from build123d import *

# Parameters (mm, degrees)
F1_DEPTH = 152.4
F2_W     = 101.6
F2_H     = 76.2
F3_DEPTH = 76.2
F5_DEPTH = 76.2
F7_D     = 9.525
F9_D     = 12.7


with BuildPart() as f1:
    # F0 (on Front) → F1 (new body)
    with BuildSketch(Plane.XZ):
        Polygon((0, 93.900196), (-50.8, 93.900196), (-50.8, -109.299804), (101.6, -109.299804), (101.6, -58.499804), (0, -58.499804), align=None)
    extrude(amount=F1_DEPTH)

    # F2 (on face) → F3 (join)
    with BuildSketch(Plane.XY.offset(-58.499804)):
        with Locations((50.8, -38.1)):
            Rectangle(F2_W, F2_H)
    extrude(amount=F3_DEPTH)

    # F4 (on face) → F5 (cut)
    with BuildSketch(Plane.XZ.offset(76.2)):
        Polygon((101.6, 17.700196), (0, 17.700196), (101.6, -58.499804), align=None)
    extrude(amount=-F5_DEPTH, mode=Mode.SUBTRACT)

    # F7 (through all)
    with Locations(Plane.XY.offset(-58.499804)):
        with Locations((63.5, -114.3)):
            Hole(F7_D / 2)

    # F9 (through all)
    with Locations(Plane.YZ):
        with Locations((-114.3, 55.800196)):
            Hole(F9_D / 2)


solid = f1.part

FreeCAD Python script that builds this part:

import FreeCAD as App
import Part
import Sketcher
from FreeCAD import Vector
Q = App.Units.Quantity


def add_polygon(sketch, points):
    """Adds a closed chain of lines whose ends are joined by coincident constraints."""
    first, n = sketch.GeometryCount, len(points)
    for a, b in zip(points, points[1:] + points[:1]):
        sketch.addGeometry(Part.LineSegment(App.Vector(*a, 0), App.Vector(*b, 0)), False)
    for i in range(n):
        sketch.addConstraint(Sketcher.Constraint("Coincident", first + i, 2, first + (i + 1) % n, 1))

doc = App.newDocument("Part")
body = doc.addObject("PartDesign::Body", "Body")

sketch1 = body.newObject("Sketcher::SketchObject", "Sketch")
sketch1.AttachmentSupport = (doc.getObject("XZ_Plane"), [""])
sketch1.MapMode = "FlatFace"
add_polygon(sketch1, [(0, 94), (-51, 94), (-51, -109), (102, -109), (102, -58), (0, -58)])
sketch1.addConstraint(Sketcher.Constraint("Horizontal", 0))
sketch1.addConstraint(Sketcher.Constraint("Vertical", 1))
sketch1.addConstraint(Sketcher.Constraint("Horizontal", 2))
sketch1.addConstraint(Sketcher.Constraint("Vertical", 3))
sketch1.addConstraint(Sketcher.Constraint("Horizontal", 4))
sketch1.addConstraint(Sketcher.Constraint("Vertical", 5))
sketch1.addConstraint(Sketcher.Constraint("PointOnObject", 4, 2, -2))
sketch1.addConstraint(Sketcher.Constraint("Equal", 0, 3))
sketch1.addConstraint(Sketcher.Constraint("Equal", 2, 5))
sketch1.addConstraint(Sketcher.Constraint("DistanceX", 0, 2, 0, 1, Q("2 in")))
sketch1.addConstraint(Sketcher.Constraint("DistanceX", 2, 1, 2, 2, Q("6 in")))
sketch1.addConstraint(Sketcher.Constraint("DistanceY", -1, 1, 0, 2, 93.900196))
pad1 = body.newObject("PartDesign::Pad", "Pad")
pad1.Profile = sketch1
pad1.Length = Q("6 in")

sketch2 = body.newObject("Sketcher::SketchObject", "Sketch001")
sketch2.AttachmentSupport = (doc.getObject("XY_Plane"), [""])
sketch2.MapMode = "FlatFace"
sketch2.AttachmentOffset = App.Placement(Vector(0, 0, -58.499804), App.Rotation())
add_polygon(sketch2, [(0, 0), (0, -76), (102, -76), (102, 0)])
sketch2.addConstraint(Sketcher.Constraint("Vertical", 0))
sketch2.addConstraint(Sketcher.Constraint("Horizontal", 1))
sketch2.addConstraint(Sketcher.Constraint("Vertical", 2))
sketch2.addConstraint(Sketcher.Constraint("Horizontal", 3))
sketch2.addConstraint(Sketcher.Constraint("Coincident", 3, 2, -1, 1))
sketch2.addConstraint(Sketcher.Constraint("DistanceX", 1, 1, 1, 2, Q("4 in")))
sketch2.addConstraint(Sketcher.Constraint("DistanceY", 0, 2, 0, 1, Q("3 in")))
pad2 = body.newObject("PartDesign::Pad", "Pad001")
pad2.Profile = sketch2
pad2.Length = Q("3 in")

sketch3 = body.newObject("Sketcher::SketchObject", "Sketch002")
sketch3.AttachmentSupport = (doc.getObject("XZ_Plane"), [""])
sketch3.MapMode = "FlatFace"
sketch3.AttachmentOffset = App.Placement(Vector(0, 0, 3 * 25.4), App.Rotation())
add_polygon(sketch3, [(102, 18), (0, 18), (102, -58)])
sketch3.addConstraint(Sketcher.Constraint("Horizontal", 0))
sketch3.addConstraint(Sketcher.Constraint("Vertical", 2))
sketch3.addConstraint(Sketcher.Constraint("PointOnObject", 0, 2, -2))
sketch3.addConstraint(Sketcher.Constraint("DistanceX", 0, 2, 0, 1, Q("4 in")))
sketch3.addConstraint(Sketcher.Constraint("DistanceY", 2, 1, 2, 2, Q("3 in")))
sketch3.addConstraint(Sketcher.Constraint("DistanceY", -1, 1, 0, 2, 17.700196))
pocket1 = body.newObject("PartDesign::Pocket", "Pocket")
pocket1.Profile = sketch3
pocket1.Length = Q("3 in")

sketch4 = body.newObject("Sketcher::SketchObject", "Sketch003")
sketch4.AttachmentSupport = (doc.getObject("XY_Plane"), [""])
sketch4.MapMode = "FlatFace"
sketch4.AttachmentOffset = App.Placement(Vector(0, 0, -58.499804), App.Rotation())
sketch4.addGeometry(Part.Circle(Vector(63.5, -114.3, 0), Vector(0, 0, 1), 4.8), False)
sketch4.addConstraint(Sketcher.Constraint("Diameter", 0, Q("0.375 in")))
sketch4.addConstraint(Sketcher.Constraint("DistanceX", -1, 1, 0, 3, Q("2.5 in")))
sketch4.addConstraint(Sketcher.Constraint("DistanceY", 0, 3, -1, 1, Q("4.5 in")))
doc.recompute()
hole = body.newObject("PartDesign::Hole", "Hole")
hole.Profile = sketch4
hole.ThreadType = "None"
hole.Diameter = Q("0.375 in")
hole.DepthType = "ThroughAll"

sketch5 = body.newObject("Sketcher::SketchObject", "Sketch004")
sketch5.AttachmentSupport = (doc.getObject("YZ_Plane"), [""])
sketch5.MapMode = "FlatFace"
sketch5.addGeometry(Part.Circle(Vector(-114, 56, 0), Vector(0, 0, 1), 6), False)
sketch5.addConstraint(Sketcher.Constraint("Diameter", 0, Q("0.5 in")))
sketch5.addConstraint(Sketcher.Constraint("DistanceX", 0, 3, -1, 1, Q("4.5 in")))
sketch5.addConstraint(Sketcher.Constraint("DistanceY", -1, 1, 0, 3, 55.800196))
doc.recompute()
hole2 = body.newObject("PartDesign::Hole", "Hole001")
hole2.Profile = sketch5
hole2.ThreadType = "None"
hole2.Diameter = Q("0.5 in")
hole2.DepthType = "ThroughAll"

doc.recompute()
